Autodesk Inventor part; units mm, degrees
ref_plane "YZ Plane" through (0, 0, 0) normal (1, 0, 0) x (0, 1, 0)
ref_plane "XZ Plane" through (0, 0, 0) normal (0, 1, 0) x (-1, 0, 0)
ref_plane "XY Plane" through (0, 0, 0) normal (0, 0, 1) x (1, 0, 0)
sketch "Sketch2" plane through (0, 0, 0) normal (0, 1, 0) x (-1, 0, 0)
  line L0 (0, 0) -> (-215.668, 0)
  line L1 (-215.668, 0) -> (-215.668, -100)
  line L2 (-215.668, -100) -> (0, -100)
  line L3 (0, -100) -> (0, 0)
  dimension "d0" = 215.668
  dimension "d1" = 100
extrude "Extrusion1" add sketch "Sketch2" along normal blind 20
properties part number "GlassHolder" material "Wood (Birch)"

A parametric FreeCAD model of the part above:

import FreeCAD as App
import Part
import Sketcher
Q = App.Units.Quantity


def add_polygon(sketch, points):
    """Adds a closed chain of lines whose ends are joined by coincident constraints."""
    first, n = sketch.GeometryCount, len(points)
    for a, b in zip(points, points[1:] + points[:1]):
        sketch.addGeometry(Part.LineSegment(App.Vector(*a, 0), App.Vector(*b, 0)), False)
    for i in range(n):
        sketch.addConstraint(Sketcher.Constraint("Coincident", first + i, 2, first + (i + 1) % n, 1))

doc = App.newDocument("Part")
body = doc.addObject("PartDesign::Body", "Body")

sketch1 = body.newObject("Sketcher::SketchObject", "Sketch")
sketch1.AttachmentSupport = (doc.getObject("XZ_Plane"), [""])
sketch1.MapMode = "FlatFace"
add_polygon(sketch1, [(0, -100), (0, 0), (216, 0), (216, -100)])
sketch1.addConstraint(Sketcher.Constraint("Vertical", 0))
sketch1.addConstraint(Sketcher.Constraint("Horizontal", 1))
sketch1.addConstraint(Sketcher.Constraint("Vertical", 2))
sketch1.addConstraint(Sketcher.Constraint("Horizontal", 3))
sketch1.addConstraint(Sketcher.Constraint("Coincident", 0, 2, -1, 1))
sketch1.addConstraint(Sketcher.Constraint("DistanceY", 0, 1, 0, 2, Q("3.937 in")))
sketch1.addConstraint(Sketcher.Constraint("DistanceX", 1, 1, 1, 2, Q("215.668 mm")))
pad1 = body.newObject("PartDesign::Pad", "Pad")
pad1.Profile = sketch1
pad1.Length = Q("0.7874016 in")
pad1.Reversed = True

doc.recompute()
